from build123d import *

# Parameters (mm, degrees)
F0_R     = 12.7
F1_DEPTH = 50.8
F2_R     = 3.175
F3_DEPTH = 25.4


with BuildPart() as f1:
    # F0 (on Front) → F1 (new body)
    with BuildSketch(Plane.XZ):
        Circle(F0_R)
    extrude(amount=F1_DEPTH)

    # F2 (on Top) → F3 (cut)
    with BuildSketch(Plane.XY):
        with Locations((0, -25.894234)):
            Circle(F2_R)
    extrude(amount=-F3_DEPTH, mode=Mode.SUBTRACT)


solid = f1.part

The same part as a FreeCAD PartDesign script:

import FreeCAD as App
import Part
import Sketcher
Q = App.Units.Quantity

doc = App.newDocument("Part")
body = doc.addObject("PartDesign::Body", "Body")

# Sketch on XZ plane
sketch1 = body.newObject("Sketcher::SketchObject", "Sketch")
sketch1.AttachmentSupport = (doc.getObject("XZ_Plane"), [""])
sketch1.MapMode = "FlatFace"
sketch1.addGeometry(Part.Circle(App.Vector(0, 0, 0), App.Vector(0, 0, 1), 12.7), False)
sketch1.addConstraint(Sketcher.Constraint("Coincident", 0, 3, -1, 1))
sketch1.addConstraint(Sketcher.Constraint("Diameter", 0, Q("1 in")))
pad1 = body.newObject("PartDesign::Pad", "Pad")
pad1.Profile = sketch1
pad1.Length = Q("2 in")

# Sketch on XY plane
sketch2 = body.newObject("Sketcher::SketchObject", "Sketch001")
sketch2.AttachmentSupport = (doc.getObject("XY_Plane"), [""])
sketch2.MapMode = "FlatFace"
sketch2.addGeometry(Part.Circle(App.Vector(0, -25.894234, 0), App.Vector(0, 0, 1), 3.175), False)
sketch2.addConstraint(Sketcher.Constraint("PointOnObject", 0, 3, -2))
sketch2.addConstraint(Sketcher.Constraint("Diameter", 0, Q("0.25 in")))
sketch2.addConstraint(Sketcher.Constraint("DistanceY", 0, 3, -1, 1, Q("25.894234 mm")))
pocket1 = body.newObject("PartDesign::Pocket", "Pocket")
pocket1.Profile = sketch2
pocket1.Length = Q("1 in")

doc.recompute()
